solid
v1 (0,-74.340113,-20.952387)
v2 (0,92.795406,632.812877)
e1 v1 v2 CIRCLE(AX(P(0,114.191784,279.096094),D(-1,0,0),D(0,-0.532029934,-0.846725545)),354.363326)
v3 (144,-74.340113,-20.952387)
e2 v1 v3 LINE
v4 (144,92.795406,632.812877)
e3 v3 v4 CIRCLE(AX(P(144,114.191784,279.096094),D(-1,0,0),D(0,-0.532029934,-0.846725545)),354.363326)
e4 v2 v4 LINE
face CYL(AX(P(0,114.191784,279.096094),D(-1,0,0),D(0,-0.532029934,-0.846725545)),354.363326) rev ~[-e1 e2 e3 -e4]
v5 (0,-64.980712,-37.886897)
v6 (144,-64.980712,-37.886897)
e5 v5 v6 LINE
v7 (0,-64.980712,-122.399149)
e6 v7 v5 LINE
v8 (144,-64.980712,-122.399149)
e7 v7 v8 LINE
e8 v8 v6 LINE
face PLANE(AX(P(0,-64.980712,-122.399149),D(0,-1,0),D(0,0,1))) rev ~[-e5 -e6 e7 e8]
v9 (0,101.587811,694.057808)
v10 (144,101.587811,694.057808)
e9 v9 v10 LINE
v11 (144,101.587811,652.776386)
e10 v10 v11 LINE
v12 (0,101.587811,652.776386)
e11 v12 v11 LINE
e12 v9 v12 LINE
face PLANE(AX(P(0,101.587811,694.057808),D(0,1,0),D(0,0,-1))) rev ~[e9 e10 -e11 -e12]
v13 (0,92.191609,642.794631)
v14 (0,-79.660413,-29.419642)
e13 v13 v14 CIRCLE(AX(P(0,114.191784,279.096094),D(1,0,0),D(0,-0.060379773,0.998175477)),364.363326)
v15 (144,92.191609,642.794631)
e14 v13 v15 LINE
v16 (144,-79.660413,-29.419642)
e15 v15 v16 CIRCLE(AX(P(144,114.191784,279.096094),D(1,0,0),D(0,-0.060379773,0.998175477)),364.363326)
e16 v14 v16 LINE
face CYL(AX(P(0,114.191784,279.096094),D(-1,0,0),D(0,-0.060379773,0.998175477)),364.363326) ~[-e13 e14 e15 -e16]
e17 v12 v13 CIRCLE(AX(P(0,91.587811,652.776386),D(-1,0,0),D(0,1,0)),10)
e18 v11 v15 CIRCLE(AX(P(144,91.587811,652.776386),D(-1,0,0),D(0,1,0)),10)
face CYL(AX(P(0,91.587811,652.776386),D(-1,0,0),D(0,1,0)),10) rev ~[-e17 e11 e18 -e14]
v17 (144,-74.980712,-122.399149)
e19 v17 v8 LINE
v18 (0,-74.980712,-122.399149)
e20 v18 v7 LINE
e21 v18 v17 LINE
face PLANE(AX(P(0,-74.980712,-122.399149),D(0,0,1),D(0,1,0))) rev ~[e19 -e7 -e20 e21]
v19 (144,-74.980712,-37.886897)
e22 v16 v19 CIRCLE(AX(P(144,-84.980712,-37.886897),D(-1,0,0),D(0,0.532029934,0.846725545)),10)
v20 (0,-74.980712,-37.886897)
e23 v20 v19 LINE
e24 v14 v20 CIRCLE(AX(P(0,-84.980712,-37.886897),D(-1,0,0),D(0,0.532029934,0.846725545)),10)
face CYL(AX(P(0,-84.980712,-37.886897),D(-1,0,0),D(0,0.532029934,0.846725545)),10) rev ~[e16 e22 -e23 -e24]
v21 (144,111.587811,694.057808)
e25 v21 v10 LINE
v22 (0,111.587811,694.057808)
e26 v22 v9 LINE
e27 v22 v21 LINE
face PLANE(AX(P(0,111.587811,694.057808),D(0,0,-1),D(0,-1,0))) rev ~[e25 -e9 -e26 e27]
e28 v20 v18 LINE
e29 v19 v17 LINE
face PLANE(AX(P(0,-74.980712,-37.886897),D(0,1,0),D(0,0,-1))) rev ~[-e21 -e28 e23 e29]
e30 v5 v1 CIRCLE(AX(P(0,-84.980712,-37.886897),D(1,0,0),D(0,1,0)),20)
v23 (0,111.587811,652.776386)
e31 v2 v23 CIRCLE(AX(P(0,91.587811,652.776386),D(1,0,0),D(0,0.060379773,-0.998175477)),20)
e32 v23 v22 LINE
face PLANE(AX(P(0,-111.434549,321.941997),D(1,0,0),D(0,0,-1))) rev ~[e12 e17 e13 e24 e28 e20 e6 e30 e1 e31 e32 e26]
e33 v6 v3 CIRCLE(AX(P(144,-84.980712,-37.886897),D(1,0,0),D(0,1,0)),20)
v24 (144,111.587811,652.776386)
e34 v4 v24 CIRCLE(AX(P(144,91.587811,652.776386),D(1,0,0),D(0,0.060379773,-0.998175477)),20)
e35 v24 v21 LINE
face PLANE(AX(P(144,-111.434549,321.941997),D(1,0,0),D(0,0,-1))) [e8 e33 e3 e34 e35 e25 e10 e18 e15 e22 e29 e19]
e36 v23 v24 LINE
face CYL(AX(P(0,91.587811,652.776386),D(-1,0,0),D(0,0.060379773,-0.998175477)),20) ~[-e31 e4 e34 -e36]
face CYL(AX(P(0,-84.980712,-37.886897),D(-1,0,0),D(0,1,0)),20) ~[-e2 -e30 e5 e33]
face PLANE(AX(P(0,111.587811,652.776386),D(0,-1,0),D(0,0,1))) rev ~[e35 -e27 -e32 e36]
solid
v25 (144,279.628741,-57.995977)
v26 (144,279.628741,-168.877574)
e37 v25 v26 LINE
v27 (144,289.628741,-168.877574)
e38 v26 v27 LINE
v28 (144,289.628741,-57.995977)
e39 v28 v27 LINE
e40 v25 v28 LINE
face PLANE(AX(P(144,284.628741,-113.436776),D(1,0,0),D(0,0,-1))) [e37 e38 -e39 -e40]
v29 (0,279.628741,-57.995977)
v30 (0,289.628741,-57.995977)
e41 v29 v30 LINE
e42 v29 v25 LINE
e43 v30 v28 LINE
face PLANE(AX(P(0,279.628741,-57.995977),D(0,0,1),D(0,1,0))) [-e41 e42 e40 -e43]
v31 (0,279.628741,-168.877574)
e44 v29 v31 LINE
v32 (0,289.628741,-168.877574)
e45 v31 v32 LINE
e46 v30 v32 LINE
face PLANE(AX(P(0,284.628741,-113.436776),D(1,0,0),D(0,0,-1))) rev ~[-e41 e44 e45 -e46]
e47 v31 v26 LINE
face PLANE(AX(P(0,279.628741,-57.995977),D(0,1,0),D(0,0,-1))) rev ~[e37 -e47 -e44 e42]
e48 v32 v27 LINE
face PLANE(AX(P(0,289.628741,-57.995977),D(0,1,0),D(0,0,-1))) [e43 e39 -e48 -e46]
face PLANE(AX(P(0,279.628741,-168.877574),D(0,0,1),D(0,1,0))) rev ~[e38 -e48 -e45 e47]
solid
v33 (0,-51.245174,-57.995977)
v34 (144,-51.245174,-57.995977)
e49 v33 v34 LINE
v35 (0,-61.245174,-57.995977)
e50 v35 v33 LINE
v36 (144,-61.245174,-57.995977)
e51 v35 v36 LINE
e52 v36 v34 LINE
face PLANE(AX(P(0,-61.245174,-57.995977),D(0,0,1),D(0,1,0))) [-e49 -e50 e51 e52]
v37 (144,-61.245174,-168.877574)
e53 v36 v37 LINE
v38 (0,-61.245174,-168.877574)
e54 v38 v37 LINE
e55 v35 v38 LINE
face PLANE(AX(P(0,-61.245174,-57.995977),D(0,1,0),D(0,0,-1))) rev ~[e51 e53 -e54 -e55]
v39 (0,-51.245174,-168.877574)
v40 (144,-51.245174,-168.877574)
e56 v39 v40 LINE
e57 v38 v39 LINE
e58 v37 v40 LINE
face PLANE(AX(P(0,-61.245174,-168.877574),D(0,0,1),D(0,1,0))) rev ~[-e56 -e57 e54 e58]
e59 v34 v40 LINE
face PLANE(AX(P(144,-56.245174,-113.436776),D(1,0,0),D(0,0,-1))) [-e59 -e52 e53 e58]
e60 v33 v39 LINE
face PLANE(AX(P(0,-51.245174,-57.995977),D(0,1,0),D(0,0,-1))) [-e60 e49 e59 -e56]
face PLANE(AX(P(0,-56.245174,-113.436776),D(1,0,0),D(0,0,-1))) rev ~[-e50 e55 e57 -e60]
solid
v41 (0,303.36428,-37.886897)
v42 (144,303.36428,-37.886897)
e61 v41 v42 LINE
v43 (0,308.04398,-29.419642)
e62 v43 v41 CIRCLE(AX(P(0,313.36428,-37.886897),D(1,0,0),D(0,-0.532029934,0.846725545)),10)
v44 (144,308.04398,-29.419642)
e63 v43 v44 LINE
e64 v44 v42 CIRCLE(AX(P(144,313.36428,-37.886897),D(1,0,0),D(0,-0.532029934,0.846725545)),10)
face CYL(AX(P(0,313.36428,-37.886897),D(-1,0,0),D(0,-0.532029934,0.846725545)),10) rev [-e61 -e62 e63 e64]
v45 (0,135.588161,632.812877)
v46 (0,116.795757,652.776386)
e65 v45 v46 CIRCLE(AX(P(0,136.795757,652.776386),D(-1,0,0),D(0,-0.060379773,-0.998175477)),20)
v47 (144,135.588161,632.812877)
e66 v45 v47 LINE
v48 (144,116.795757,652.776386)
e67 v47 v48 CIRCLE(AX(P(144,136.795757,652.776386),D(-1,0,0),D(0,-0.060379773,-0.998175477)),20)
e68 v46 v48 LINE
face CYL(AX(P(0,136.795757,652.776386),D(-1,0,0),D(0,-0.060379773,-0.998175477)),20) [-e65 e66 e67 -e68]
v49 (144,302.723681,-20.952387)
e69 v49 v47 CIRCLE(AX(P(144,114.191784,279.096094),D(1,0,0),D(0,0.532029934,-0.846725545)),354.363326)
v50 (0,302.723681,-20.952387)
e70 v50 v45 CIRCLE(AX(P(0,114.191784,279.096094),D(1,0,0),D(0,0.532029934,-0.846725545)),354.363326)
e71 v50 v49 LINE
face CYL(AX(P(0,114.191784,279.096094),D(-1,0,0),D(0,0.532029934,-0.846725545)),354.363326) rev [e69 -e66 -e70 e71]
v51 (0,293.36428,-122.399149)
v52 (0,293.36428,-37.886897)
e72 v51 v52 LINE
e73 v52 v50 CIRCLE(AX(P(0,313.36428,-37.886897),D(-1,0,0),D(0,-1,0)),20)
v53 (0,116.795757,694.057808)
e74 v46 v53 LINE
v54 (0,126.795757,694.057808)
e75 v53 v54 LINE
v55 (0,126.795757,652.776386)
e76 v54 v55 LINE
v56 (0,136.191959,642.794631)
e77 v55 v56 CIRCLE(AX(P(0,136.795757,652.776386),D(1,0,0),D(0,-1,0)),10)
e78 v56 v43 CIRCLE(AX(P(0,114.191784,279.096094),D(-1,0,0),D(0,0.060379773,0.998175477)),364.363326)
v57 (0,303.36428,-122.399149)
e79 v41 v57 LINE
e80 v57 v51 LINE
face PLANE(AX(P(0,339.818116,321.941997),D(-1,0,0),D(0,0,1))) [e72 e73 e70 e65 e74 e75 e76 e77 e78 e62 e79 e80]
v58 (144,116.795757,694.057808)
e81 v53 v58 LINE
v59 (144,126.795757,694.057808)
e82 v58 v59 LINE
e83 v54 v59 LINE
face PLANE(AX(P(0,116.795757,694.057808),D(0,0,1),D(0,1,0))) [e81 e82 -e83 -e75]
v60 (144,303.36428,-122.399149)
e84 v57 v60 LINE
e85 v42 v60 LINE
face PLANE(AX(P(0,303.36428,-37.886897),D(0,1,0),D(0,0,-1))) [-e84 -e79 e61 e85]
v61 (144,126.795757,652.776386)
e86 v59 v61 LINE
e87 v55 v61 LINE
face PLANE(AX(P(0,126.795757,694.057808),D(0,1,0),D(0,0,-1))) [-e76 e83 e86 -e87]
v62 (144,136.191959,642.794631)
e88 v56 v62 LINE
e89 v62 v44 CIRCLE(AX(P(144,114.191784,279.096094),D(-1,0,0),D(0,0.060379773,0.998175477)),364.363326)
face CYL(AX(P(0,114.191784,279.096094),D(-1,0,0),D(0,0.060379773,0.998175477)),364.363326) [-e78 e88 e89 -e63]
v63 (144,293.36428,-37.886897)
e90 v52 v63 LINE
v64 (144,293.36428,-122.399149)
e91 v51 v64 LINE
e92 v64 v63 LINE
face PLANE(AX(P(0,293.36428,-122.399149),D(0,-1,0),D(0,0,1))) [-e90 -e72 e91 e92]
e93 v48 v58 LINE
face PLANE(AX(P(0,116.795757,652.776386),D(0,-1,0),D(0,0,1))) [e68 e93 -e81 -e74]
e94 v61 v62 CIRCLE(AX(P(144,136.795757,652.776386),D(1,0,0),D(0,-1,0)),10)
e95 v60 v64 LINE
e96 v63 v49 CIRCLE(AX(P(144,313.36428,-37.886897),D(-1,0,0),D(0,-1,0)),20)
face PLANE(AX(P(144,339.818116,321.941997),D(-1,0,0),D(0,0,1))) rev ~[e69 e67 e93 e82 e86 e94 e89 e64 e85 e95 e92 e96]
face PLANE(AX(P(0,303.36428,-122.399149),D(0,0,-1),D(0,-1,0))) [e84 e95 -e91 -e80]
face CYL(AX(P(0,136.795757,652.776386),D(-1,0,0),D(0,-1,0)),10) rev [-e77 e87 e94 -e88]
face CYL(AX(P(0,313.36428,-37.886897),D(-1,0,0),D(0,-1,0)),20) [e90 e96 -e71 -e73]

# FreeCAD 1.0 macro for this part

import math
import FreeCAD as App
import Part
import Sketcher
Q = App.Units.Quantity


def add_polygon(sketch, points):
    """Adds a closed chain of lines whose ends are joined by coincident constraints."""
    first, n = sketch.GeometryCount, len(points)
    for a, b in zip(points, points[1:] + points[:1]):
        sketch.addGeometry(Part.LineSegment(App.Vector(*a, 0), App.Vector(*b, 0)), False)
    for i in range(n):
        sketch.addConstraint(Sketcher.Constraint("Coincident", first + i, 2, first + (i + 1) % n, 1))

doc = App.newDocument("Part")
body = doc.addObject("PartDesign::Body", "Body")

# Sketch on YZ plane
sketch1 = body.newObject("Sketcher::SketchObject", "Sketch")
sketch1.AttachmentSupport = (doc.getObject("YZ_Plane"), [""])
sketch1.MapMode = "FlatFace"
sketch1.addGeometry([
    Part.LineSegment(App.Vector(-74.980712, -122.399149, 0), App.Vector(-64.980712, -122.399149, 0)),  # 0
    Part.LineSegment(App.Vector(-64.980712, -122.399149, 0), App.Vector(-64.980712, -37.886897, 0)),  # 1
    Part.ArcOfCircle(Part.Circle(App.Vector(-84.980712, -37.886897, 0), App.Vector(0, 0, 1), 20), math.radians(0), math.radians(57.857288)),  # 2
    Part.ArcOfCircle(Part.Circle(App.Vector(114.191784, 279.096094, 0), App.Vector(0, 0, 1), 354.363326), math.radians(93.461612), math.radians(237.857288)),  # 3
    Part.ArcOfCircle(Part.Circle(App.Vector(91.587811, 652.776386, 0), App.Vector(0, 0, 1), 20), math.radians(-86.538388), math.radians(0)),  # 4
    Part.LineSegment(App.Vector(111.587811, 652.776386, 0), App.Vector(111.587811, 694.057808, 0)),  # 5
    Part.LineSegment(App.Vector(111.587811, 694.057808, 0), App.Vector(101.587811, 694.057808, 0)),  # 6
    Part.LineSegment(App.Vector(101.587811, 694.057808, 0), App.Vector(101.587811, 652.776386, 0)),  # 7
    Part.ArcOfCircle(Part.Circle(App.Vector(91.587811, 652.776386, 0), App.Vector(0, 0, 1), 10), math.radians(-86.538388), math.radians(0)),  # 8
    Part.ArcOfCircle(Part.Circle(App.Vector(114.191784, 279.096094, 0), App.Vector(0, 0, 1), 364.363326), math.radians(93.461612), math.radians(237.857288)),  # 9
    Part.ArcOfCircle(Part.Circle(App.Vector(-84.980712, -37.886897, 0), App.Vector(0, 0, 1), 10), math.radians(0), math.radians(57.857288)),  # 10
    Part.LineSegment(App.Vector(-74.980712, -37.886897, 0), App.Vector(-74.980712, -122.399149, 0)),  # 11
], False)
sketch1.addConstraint([
    Sketcher.Constraint("Coincident", 0, 2, 1, 1),
    Sketcher.Constraint("Tangent", 1, 2, 2, 1),
    Sketcher.Constraint("Tangent", 2, 2, 3, 2),
    Sketcher.Constraint("Tangent", 3, 1, 4, 1),
    Sketcher.Constraint("Tangent", 4, 2, 5, 1),
    Sketcher.Constraint("Coincident", 5, 2, 6, 1),
    Sketcher.Constraint("Coincident", 6, 2, 7, 1),
    Sketcher.Constraint("Tangent", 7, 2, 8, 2),
    Sketcher.Constraint("Tangent", 8, 1, 9, 1),
    Sketcher.Constraint("Tangent", 9, 2, 10, 2),
    Sketcher.Constraint("Tangent", 10, 1, 11, 1),
    Sketcher.Constraint("Coincident", 11, 2, 0, 1),
    Sketcher.Constraint("Horizontal", 0),
    Sketcher.Constraint("Vertical", 1),
    Sketcher.Constraint("Vertical", 5),
    Sketcher.Constraint("Horizontal", 6),
    Sketcher.Constraint("Vertical", 7),
    Sketcher.Constraint("Vertical", 11),
    Sketcher.Constraint("Coincident", 8, 3, 4, 3),
    Sketcher.Constraint("Coincident", 9, 3, 3, 3),
    Sketcher.Constraint("Coincident", 10, 3, 2, 3),
    Sketcher.Constraint("Equal", 2, 4),
    Sketcher.Constraint("Radius", 2, Q("20 mm")),
    Sketcher.Constraint("Radius", 8, Q("10 mm")),
    Sketcher.Constraint("Radius", 3, Q("354.363326 mm")),
    Sketcher.Constraint("DistanceY", 1, 1, 1, 2, Q("84.512251 mm")),
    Sketcher.Constraint("DistanceY", 5, 1, 5, 2, Q("41.281422 mm")),
    Sketcher.Constraint("DistanceX", -1, 1, 4, 3, Q("91.587811 mm")),
    Sketcher.Constraint("DistanceY", 0, 2, -1, 1, Q("122.399149 mm")),
    Sketcher.Constraint("DistanceY", -1, 1, 8, 1, Q("642.794631 mm")),
    Sketcher.Constraint("DistanceY", 2, 3, 3, 3, Q("316.982992 mm")),
])
pad1 = body.newObject("PartDesign::Pad", "Pad")
pad1.Profile = sketch1
pad1.Length = 144
body2 = doc.addObject("PartDesign::Body", "Body001")

# Sketch on YZ plane
sketch2 = body2.newObject("Sketcher::SketchObject", "Sketch001")
sketch2.AttachmentSupport = (doc.getObject("YZ_Plane001"), [""])
sketch2.MapMode = "FlatFace"
sketch2.addGeometry([
    Part.LineSegment(App.Vector(116.795757, 694.057808, 0), App.Vector(116.795757, 652.776386, 0)),  # 0
    Part.ArcOfCircle(Part.Circle(App.Vector(136.795757, 652.776386, 0), App.Vector(0, 0, 1), 20), math.radians(-180), math.radians(-93.461612)),  # 1
    Part.ArcOfCircle(Part.Circle(App.Vector(114.191784, 279.096094, 0), App.Vector(0, 0, 1), 354.363326), math.radians(-57.857288), math.radians(86.538388)),  # 2
    Part.ArcOfCircle(Part.Circle(App.Vector(313.36428, -37.886897, 0), App.Vector(0, 0, 1), 20), math.radians(122.142712), math.radians(180)),  # 3
    Part.LineSegment(App.Vector(293.36428, -37.886897, 0), App.Vector(293.36428, -122.399149, 0)),  # 4
    Part.LineSegment(App.Vector(293.36428, -122.399149, 0), App.Vector(303.36428, -122.399149, 0)),  # 5
    Part.LineSegment(App.Vector(303.36428, -122.399149, 0), App.Vector(303.36428, -37.886897, 0)),  # 6
    Part.ArcOfCircle(Part.Circle(App.Vector(313.36428, -37.886897, 0), App.Vector(0, 0, 1), 10), math.radians(122.142712), math.radians(180)),  # 7
    Part.ArcOfCircle(Part.Circle(App.Vector(114.191784, 279.096094, 0), App.Vector(0, 0, 1), 364.363326), math.radians(-57.857288), math.radians(86.538388)),  # 8
    Part.ArcOfCircle(Part.Circle(App.Vector(136.795757, 652.776386, 0), App.Vector(0, 0, 1), 10), math.radians(180), math.radians(266.538388)),  # 9
    Part.LineSegment(App.Vector(126.795757, 652.776386, 0), App.Vector(126.795757, 694.057808, 0)),  # 10
    Part.LineSegment(App.Vector(126.795757, 694.057808, 0), App.Vector(116.795757, 694.057808, 0)),  # 11
], False)
sketch2.addConstraint([
    Sketcher.Constraint("Tangent", 0, 2, 1, 1),
    Sketcher.Constraint("Tangent", 1, 2, 2, 2),
    Sketcher.Constraint("Tangent", 2, 1, 3, 1),
    Sketcher.Constraint("Tangent", 3, 2, 4, 1),
    Sketcher.Constraint("Coincident", 4, 2, 5, 1),
    Sketcher.Constraint("Coincident", 5, 2, 6, 1),
    Sketcher.Constraint("Tangent", 6, 2, 7, 2),
    Sketcher.Constraint("Tangent", 7, 1, 8, 1),
    Sketcher.Constraint("Tangent", 8, 2, 9, 2),
    Sketcher.Constraint("Tangent", 9, 1, 10, 1),
    Sketcher.Constraint("Coincident", 10, 2, 11, 1),
    Sketcher.Constraint("Coincident", 11, 2, 0, 1),
    Sketcher.Constraint("Vertical", 0),
    Sketcher.Constraint("Vertical", 4),
    Sketcher.Constraint("Horizontal", 5),
    Sketcher.Constraint("Vertical", 6),
    Sketcher.Constraint("Vertical", 10),
    Sketcher.Constraint("Horizontal", 11),
    Sketcher.Constraint("Coincident", 7, 3, 3, 3),
    Sketcher.Constraint("Coincident", 8, 3, 2, 3),
    Sketcher.Constraint("Coincident", 9, 3, 1, 3),
    Sketcher.Constraint("Equal", 1, 3),
    Sketcher.Constraint("Radius", 1, Q("20 mm")),
    Sketcher.Constraint("Radius", 7, Q("10 mm")),
    Sketcher.Constraint("Radius", 2, Q("354.363326 mm")),
    Sketcher.Constraint("DistanceY", 0, 2, 0, 1, Q("41.281422 mm")),
    Sketcher.Constraint("DistanceY", 4, 2, 4, 1, Q("84.512251 mm")),
    Sketcher.Constraint("DistanceX", -1, 1, 3, 3, Q("313.36428 mm")),
    Sketcher.Constraint("DistanceX", -1, 1, 1, 2, Q("135.588161 mm")),
    Sketcher.Constraint("DistanceY", 4, 2, -1, 1, Q("122.399149 mm")),
    Sketcher.Constraint("DistanceY", -1, 1, 8, 2, Q("642.794631 mm")),
])
pad2 = body2.newObject("PartDesign::Pad", "Pad001")
pad2.Profile = sketch2
pad2.Length = 144
body3 = doc.addObject("PartDesign::Body", "Body002")

# Sketch on YZ plane
sketch3 = body3.newObject("Sketcher::SketchObject", "Sketch002")
sketch3.AttachmentSupport = (doc.getObject("YZ_Plane002"), [""])
sketch3.MapMode = "FlatFace"
add_polygon(sketch3, [(-51.245174, -57.995977), (-61.245174, -57.995977), (-61.245174, -168.877574), (-51.245174, -168.877574)])  # lines 0-3
sketch3.addConstraint([
    Sketcher.Constraint("Horizontal", 0),
    Sketcher.Constraint("Vertical", 1),
    Sketcher.Constraint("Horizontal", 2),
    Sketcher.Constraint("Vertical", 3),
    Sketcher.Constraint("DistanceX", 0, 2, 0, 1, Q("10 mm")),
    Sketcher.Constraint("DistanceY", 1, 2, 1, 1, Q("110.881596 mm")),
    Sketcher.Constraint("DistanceX", 0, 2, -1, 1, Q("61.245174 mm")),
    Sketcher.Constraint("DistanceY", 0, 2, -1, 1, Q("57.995977 mm")),
])
pad3 = body3.newObject("PartDesign::Pad", "Pad002")
pad3.Profile = sketch3
pad3.Length = 144
body4 = doc.addObject("PartDesign::Body", "Body003")

# Sketch on YZ plane
sketch4 = body4.newObject("Sketcher::SketchObject", "Sketch003")
sketch4.AttachmentSupport = (doc.getObject("YZ_Plane003"), [""])
sketch4.MapMode = "FlatFace"
add_polygon(sketch4, [(289.628741, -57.995977), (279.628741, -57.995977), (279.628741, -168.877574), (289.628741, -168.877574)])  # lines 0-3
sketch4.addConstraint([
    Sketcher.Constraint("Horizontal", 0),
    Sketcher.Constraint("Vertical", 1),
    Sketcher.Constraint("Horizontal", 2),
    Sketcher.Constraint("Vertical", 3),
    Sketcher.Constraint("DistanceX", 0, 2, 0, 1, Q("10 mm")),
    Sketcher.Constraint("DistanceY", 1, 2, 1, 1, Q("110.881596 mm")),
    Sketcher.Constraint("DistanceX", -1, 1, 0, 2, Q("279.628741 mm")),
    Sketcher.Constraint("DistanceY", 0, 2, -1, 1, Q("57.995977 mm")),
])
pad4 = body4.newObject("PartDesign::Pad", "Pad003")
pad4.Profile = sketch4
pad4.Length = 144

doc.recompute()
